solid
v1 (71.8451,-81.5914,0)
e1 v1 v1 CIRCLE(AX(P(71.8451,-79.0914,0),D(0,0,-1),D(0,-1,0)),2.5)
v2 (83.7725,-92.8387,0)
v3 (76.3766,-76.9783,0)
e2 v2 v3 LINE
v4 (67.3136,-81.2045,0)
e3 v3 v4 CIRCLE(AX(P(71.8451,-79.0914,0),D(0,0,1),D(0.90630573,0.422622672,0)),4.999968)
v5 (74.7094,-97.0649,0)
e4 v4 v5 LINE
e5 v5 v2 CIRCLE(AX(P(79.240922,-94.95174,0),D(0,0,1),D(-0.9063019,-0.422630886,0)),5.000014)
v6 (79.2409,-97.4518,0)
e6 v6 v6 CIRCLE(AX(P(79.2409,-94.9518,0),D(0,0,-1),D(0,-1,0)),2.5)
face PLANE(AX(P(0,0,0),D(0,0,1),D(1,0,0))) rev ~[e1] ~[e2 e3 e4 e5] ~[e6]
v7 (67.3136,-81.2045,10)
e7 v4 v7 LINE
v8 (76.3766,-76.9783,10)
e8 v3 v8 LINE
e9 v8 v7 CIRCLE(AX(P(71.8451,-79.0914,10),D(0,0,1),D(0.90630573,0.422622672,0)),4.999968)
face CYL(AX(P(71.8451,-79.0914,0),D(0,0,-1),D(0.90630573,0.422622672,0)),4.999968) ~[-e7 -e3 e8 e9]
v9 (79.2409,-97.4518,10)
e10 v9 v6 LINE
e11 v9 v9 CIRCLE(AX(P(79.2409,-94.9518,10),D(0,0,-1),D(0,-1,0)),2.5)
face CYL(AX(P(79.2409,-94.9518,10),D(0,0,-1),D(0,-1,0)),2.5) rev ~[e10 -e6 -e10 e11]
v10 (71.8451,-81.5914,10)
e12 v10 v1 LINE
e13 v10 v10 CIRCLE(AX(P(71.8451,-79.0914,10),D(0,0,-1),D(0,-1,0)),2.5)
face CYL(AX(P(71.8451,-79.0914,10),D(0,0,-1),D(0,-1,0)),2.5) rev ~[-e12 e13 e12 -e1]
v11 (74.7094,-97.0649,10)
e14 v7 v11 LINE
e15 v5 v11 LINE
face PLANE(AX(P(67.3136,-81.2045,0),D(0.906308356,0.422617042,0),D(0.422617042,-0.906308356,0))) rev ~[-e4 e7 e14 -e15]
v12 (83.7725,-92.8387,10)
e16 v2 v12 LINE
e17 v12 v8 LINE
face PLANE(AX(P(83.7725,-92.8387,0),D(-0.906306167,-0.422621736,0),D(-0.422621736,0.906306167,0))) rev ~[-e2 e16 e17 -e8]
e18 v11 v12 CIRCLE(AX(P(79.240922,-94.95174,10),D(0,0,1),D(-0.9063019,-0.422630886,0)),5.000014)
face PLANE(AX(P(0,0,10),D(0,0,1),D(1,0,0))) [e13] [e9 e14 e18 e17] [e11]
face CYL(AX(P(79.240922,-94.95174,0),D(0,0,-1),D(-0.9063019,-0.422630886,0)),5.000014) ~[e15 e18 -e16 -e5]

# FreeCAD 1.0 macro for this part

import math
import FreeCAD as App
import Part
import Sketcher

V = App.Vector
Q = App.Units.Quantity

doc = App.newDocument("Part")
params = doc.addObject("Spreadsheet::Sheet", "Params")
for row, (alias, value) in enumerate([
    ("sketch1_radius", "5 mm"),
    ("sketch1_length", "17.5 mm"),
    ("pad1_length", "10 mm"),
    ("sketch2_diameter", "5 mm"),
    ("hole_diameter", "5 mm"),
], start=1):
    params.set(f"A{row}", alias)
    params.set(f"B{row}", "=" + value)
    params.setAlias(f"B{row}", alias)

body = doc.addObject("PartDesign::Body", "Body")

sketch1 = body.newObject("Sketcher::SketchObject", "Sketch")
sketch1.AttachmentSupport = (doc.getObject("XY_Plane"), [""])
sketch1.MapMode = "FlatFace"
sketch1.addGeometry(Part.ArcOfCircle(Part.Circle(V(71.8, -79.1, 0), V(0, 0, 1), 5), math.radians(25), math.radians(205)), False)
sketch1.addGeometry(Part.LineSegment(V(67.3, -81.2, 0), V(74.7, -97.1, 0)), False)
sketch1.addGeometry(Part.ArcOfCircle(Part.Circle(V(79.2, -95, 0), V(0, 0, 1), 5), math.radians(-155), math.radians(25)), False)
sketch1.addGeometry(Part.LineSegment(V(83.8, -92.8, 0), V(76.4, -77, 0)), False)
sketch1.addConstraint(Sketcher.Constraint("Tangent", 0, 2, 1, 1))
sketch1.addConstraint(Sketcher.Constraint("Tangent", 1, 2, 2, 1))
sketch1.addConstraint(Sketcher.Constraint("Tangent", 2, 2, 3, 1))
sketch1.addConstraint(Sketcher.Constraint("Tangent", 3, 2, 0, 1))
sketch1.addConstraint(Sketcher.Constraint("Equal", 0, 2))
sketch1.addConstraint(Sketcher.Constraint("Radius", 0, 5.0))
sketch1.addConstraint(Sketcher.Constraint("Angle", 1, Q("-65 deg")))
sketch1.addConstraint(Sketcher.Constraint("Distance", 1, 17.5))
sketch1.addConstraint(Sketcher.Constraint("DistanceX", -1, 1, 0, 3, 71.845))
sketch1.addConstraint(Sketcher.Constraint("DistanceY", 1, 2, -1, 1, 97.065))
sketch1.setExpression("Constraints[5]", "Params.sketch1_radius")
sketch1.setExpression("Constraints[7]", "Params.sketch1_length")
pad1 = body.newObject("PartDesign::Pad", "Pad")
pad1.Profile = sketch1
pad1.setExpression("Length", "Params.pad1_length")

sketch2 = body.newObject("Sketcher::SketchObject", "Sketch001")
sketch2.AttachmentSupport = (doc.getObject("XY_Plane"), [""])
sketch2.MapMode = "FlatFace"
sketch2.AttachmentOffset = App.Placement(V(0, 0, 10), App.Rotation())
sketch2.addGeometry(Part.Circle(V(71.8, -79.1, 0), V(0, 0, 1), 2.5), False)
sketch2.addGeometry(Part.Circle(V(79.2, -95, 0), V(0, 0, 1), 2.5), False)
sketch2.addConstraint(Sketcher.Constraint("Equal", 0, 1))
sketch2.addConstraint(Sketcher.Constraint("Diameter", 0, 5.0))
sketch2.addConstraint(Sketcher.Constraint("DistanceX", -1, 1, 0, 3, 71.845))
sketch2.addConstraint(Sketcher.Constraint("DistanceX", -1, 1, 1, 3, 79.241))
sketch2.addConstraint(Sketcher.Constraint("DistanceY", 0, 3, -1, 1, 79.0914))
sketch2.addConstraint(Sketcher.Constraint("DistanceY", 1, 3, -1, 1, 94.9518))
sketch2.setExpression("Constraints[1]", "Params.sketch2_diameter")
doc.recompute()
hole = body.newObject("PartDesign::Hole", "Hole")
hole.Profile = sketch2
hole.ThreadType = "None"
hole.setExpression("Diameter", "Params.hole_diameter")
hole.DepthType = "ThroughAll"

doc.recompute()
